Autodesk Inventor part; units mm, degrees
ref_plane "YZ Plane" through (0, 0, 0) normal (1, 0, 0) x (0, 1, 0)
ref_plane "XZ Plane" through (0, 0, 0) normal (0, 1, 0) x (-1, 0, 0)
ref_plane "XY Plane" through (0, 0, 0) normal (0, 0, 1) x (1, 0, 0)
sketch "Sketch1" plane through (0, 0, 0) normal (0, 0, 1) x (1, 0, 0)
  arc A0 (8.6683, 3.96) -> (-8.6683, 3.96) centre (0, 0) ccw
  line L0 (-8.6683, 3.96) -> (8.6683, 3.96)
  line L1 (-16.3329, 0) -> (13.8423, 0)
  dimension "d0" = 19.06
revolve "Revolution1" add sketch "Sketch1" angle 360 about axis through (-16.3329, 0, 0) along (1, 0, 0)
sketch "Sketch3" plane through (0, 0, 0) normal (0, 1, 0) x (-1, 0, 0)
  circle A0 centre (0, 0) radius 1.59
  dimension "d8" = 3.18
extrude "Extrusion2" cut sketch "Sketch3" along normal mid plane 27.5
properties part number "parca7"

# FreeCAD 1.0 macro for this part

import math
import FreeCAD as App
import Part
import Sketcher

V = App.Vector
Q = App.Units.Quantity

doc = App.newDocument("Part")
body = doc.addObject("PartDesign::Body", "Body")

# Sketch on XY plane
sketch1 = body.newObject("Sketcher::SketchObject", "Sketch")
sketch1.AttachmentSupport = (doc.getObject("XY_Plane"), [""])
sketch1.MapMode = "FlatFace"
sketch1.addGeometry(Part.LineSegment(V(-9, 4, 0), V(9, 4, 0)), False)
sketch1.addGeometry(Part.ArcOfCircle(Part.Circle(V(0, 0, 0), V(0, 0, 1), 10), math.radians(25), math.radians(155)), False)
sketch1.addConstraint(Sketcher.Constraint("Coincident", 0, 1, 1, 2))
sketch1.addConstraint(Sketcher.Constraint("Coincident", 1, 1, 0, 2))
sketch1.addConstraint(Sketcher.Constraint("Horizontal", 0))
sketch1.addConstraint(Sketcher.Constraint("Coincident", 1, 3, -1, 1))
sketch1.addConstraint(Sketcher.Constraint("Radius", 1, Q("9.53 mm")))
sketch1.addConstraint(Sketcher.Constraint("DistanceY", -1, 1, 0, 1, Q("3.96 mm")))
revolution = body.newObject("PartDesign::Revolution", "Revolution")
revolution.Profile = sketch1
revolution.ReferenceAxis = (sketch1, ["H_Axis"])
revolution.Angle = 360

# Sketch on XZ plane
sketch2 = body.newObject("Sketcher::SketchObject", "Sketch001")
sketch2.AttachmentSupport = (doc.getObject("XZ_Plane"), [""])
sketch2.MapMode = "FlatFace"
sketch2.addGeometry(Part.Circle(V(0, 0, 0), V(0, 0, 1), 1.6), False)
sketch2.addConstraint(Sketcher.Constraint("Coincident", 0, 3, -1, 1))
sketch2.addConstraint(Sketcher.Constraint("Diameter", 0, Q("3.18 mm")))
pocket1 = body.newObject("PartDesign::Pocket", "Pocket")
pocket1.Profile = sketch2
pocket1.Length = 27.5
pocket1.Midplane = True

doc.recompute()
